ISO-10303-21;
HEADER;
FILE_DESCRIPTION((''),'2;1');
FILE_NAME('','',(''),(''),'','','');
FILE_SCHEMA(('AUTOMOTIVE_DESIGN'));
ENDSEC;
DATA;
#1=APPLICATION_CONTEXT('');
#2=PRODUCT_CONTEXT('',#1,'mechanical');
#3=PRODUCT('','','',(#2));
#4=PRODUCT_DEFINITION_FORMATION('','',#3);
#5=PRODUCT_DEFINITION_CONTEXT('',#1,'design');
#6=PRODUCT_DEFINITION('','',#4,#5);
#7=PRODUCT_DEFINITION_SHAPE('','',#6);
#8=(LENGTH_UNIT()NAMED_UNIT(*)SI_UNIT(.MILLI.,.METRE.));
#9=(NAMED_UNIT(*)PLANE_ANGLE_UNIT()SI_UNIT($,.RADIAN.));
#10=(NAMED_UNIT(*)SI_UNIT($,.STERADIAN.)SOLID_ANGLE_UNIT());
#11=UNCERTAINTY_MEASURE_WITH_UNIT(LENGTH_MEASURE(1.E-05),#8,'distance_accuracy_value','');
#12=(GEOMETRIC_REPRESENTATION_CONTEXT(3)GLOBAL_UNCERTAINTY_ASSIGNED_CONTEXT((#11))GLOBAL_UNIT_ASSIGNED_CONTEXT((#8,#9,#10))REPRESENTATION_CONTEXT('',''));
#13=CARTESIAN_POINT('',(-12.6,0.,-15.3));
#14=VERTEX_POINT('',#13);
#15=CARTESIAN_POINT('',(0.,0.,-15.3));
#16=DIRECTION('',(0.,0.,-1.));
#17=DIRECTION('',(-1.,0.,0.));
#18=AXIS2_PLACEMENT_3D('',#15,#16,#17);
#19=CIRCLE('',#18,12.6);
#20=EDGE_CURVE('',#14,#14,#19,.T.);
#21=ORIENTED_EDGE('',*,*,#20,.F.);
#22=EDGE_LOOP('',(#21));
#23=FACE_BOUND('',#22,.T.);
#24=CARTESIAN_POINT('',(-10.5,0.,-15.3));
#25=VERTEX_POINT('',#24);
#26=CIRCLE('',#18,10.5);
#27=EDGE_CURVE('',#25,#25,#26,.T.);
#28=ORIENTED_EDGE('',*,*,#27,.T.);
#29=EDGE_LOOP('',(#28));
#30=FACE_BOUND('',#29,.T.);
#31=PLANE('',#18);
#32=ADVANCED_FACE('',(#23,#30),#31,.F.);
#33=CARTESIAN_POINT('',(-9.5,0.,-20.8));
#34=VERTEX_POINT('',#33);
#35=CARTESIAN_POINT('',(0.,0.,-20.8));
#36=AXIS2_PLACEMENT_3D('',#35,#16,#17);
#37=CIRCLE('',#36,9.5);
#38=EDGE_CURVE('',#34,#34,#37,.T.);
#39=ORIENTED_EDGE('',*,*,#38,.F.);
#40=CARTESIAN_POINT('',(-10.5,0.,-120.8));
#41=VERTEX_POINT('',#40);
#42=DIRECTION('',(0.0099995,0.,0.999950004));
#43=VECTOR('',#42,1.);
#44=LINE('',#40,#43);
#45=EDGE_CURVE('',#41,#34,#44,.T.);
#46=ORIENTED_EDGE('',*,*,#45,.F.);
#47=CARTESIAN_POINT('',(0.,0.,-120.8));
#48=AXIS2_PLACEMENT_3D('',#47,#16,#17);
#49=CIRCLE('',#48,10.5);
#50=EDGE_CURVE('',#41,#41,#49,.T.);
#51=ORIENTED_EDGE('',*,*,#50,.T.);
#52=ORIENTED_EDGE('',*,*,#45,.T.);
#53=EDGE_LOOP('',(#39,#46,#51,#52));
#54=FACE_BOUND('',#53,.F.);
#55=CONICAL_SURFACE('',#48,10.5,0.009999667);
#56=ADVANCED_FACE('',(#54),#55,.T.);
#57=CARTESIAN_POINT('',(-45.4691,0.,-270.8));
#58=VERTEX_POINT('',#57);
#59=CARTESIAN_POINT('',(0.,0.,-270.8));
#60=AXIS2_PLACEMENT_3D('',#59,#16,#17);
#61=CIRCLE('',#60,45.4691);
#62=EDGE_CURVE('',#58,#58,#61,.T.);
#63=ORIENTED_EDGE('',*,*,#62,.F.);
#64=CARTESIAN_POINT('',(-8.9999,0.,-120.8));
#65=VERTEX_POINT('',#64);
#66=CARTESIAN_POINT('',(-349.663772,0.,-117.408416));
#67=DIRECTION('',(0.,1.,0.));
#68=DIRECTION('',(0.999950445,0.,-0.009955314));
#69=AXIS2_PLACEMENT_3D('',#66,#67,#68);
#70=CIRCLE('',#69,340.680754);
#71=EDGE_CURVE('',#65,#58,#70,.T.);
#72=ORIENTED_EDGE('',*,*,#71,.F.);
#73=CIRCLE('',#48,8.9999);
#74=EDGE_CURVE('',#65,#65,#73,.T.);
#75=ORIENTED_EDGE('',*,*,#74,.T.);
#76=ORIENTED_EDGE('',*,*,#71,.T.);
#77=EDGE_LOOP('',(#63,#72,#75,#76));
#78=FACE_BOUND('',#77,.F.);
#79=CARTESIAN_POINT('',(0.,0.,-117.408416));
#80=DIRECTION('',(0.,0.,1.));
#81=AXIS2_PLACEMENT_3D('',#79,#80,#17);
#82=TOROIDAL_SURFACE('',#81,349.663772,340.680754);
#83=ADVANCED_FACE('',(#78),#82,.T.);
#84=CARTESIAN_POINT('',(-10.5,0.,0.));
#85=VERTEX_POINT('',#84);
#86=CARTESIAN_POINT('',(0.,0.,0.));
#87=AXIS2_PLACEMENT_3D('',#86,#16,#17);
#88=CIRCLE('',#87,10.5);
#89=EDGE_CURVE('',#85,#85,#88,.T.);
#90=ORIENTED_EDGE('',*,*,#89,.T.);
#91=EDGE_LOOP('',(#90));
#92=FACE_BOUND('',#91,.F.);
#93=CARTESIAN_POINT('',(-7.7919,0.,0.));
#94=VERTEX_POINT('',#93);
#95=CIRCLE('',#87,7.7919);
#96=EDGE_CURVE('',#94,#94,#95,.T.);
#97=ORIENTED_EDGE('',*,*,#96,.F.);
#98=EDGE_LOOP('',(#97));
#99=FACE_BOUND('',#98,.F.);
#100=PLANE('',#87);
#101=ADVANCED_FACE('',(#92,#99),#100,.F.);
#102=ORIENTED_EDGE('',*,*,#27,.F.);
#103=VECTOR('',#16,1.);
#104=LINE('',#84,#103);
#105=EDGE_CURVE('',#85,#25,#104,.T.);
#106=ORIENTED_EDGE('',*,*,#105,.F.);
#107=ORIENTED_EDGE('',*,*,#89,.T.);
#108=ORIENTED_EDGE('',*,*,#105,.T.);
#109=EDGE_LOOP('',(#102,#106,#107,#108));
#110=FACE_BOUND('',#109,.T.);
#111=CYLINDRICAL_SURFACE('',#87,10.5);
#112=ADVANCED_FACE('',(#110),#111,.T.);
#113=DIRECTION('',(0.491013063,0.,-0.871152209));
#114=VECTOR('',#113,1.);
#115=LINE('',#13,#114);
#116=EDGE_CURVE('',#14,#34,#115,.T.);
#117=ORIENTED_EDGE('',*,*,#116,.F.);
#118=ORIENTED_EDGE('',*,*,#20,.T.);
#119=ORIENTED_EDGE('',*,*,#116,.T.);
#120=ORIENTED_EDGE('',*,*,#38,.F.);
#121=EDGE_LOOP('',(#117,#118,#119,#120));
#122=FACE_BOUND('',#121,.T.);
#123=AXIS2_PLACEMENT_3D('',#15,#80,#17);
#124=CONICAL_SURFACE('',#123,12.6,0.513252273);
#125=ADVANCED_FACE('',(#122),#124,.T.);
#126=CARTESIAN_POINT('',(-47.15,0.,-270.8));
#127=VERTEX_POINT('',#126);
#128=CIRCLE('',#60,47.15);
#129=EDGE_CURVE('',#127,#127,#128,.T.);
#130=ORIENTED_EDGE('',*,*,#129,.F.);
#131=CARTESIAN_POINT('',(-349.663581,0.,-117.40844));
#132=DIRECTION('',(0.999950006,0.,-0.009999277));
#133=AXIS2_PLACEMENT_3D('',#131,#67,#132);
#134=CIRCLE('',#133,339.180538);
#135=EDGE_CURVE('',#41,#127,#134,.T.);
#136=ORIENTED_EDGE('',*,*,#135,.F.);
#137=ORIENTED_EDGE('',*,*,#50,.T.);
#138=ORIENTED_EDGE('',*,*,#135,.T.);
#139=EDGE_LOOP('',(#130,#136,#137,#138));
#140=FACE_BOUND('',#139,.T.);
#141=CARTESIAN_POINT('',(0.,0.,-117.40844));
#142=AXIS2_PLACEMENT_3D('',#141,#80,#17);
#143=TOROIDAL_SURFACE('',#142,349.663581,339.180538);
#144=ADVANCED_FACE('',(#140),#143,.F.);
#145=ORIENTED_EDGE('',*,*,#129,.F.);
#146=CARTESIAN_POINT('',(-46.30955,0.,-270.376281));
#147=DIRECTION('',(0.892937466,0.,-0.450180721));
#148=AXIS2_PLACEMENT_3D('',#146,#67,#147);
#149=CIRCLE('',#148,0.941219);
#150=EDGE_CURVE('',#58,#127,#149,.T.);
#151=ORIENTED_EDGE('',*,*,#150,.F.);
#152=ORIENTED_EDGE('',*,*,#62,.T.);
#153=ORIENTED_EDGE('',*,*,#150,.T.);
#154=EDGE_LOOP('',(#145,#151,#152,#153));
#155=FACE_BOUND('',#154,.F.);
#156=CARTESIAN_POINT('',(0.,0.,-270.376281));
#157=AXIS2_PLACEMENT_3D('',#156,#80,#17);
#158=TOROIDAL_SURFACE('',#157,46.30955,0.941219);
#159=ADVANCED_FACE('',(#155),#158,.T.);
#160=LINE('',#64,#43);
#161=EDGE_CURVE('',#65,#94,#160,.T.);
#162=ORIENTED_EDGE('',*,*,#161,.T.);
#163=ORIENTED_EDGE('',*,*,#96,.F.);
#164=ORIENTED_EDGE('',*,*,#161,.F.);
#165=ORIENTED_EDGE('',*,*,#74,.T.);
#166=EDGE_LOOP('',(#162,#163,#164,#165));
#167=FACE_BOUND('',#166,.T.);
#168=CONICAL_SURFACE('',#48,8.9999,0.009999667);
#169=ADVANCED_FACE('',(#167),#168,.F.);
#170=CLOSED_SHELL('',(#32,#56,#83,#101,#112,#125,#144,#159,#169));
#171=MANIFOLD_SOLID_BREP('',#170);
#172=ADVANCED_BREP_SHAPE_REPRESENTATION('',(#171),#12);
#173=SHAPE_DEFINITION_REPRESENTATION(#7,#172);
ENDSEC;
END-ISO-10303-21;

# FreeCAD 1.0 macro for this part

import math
import FreeCAD as App
import Part
import Sketcher

doc = App.newDocument("Part")
body = doc.addObject("PartDesign::Body", "Body")

sketch1 = body.newObject("Sketcher::SketchObject", "Sketch")
sketch1.AttachmentSupport = (doc.getObject("XZ_Plane"), [""])
sketch1.MapMode = "FlatFace"
sketch1.addGeometry(Part.LineSegment(App.Vector(-10.5, -15.3, 0), App.Vector(-10.5, 0, 0)), False)
sketch1.addGeometry(Part.LineSegment(App.Vector(-10.5, 0, 0), App.Vector(-7.7919, 0, 0)), False)
sketch1.addGeometry(Part.LineSegment(App.Vector(-7.7919, 0, 0), App.Vector(-8.9999, -120.8, 0)), False)
sketch1.addGeometry(Part.ArcOfCircle(Part.Circle(App.Vector(-349.6639, -117.4084, 0), App.Vector(0, 0, 1), 340.680883), math.radians(-26.759732), math.radians(-0.570409)), False)
sketch1.addGeometry(Part.ArcOfCircle(Part.Circle(App.Vector(-46.3096, -270.3762, 0), App.Vector(0, 0, 1), 0.941301), math.radians(-153.238936), math.radians(-26.758323)), False)
sketch1.addGeometry(Part.ArcOfCircle(Part.Circle(App.Vector(-349.6639, -117.4084, 0), App.Vector(0, 0, 1), 339.180857), math.radians(-26.887578), math.radians(-0.572932)), False)
sketch1.addGeometry(Part.LineSegment(App.Vector(-10.5, -120.8, 0), App.Vector(-9.5, -20.8, 0)), False)
sketch1.addGeometry(Part.LineSegment(App.Vector(-9.5, -20.8, 0), App.Vector(-12.6, -15.3, 0)), False)
sketch1.addGeometry(Part.LineSegment(App.Vector(-12.6, -15.3, 0), App.Vector(-10.5, -15.3, 0)), False)
sketch1.addConstraint(Sketcher.Constraint("Coincident", 0, 2, 1, 1))
sketch1.addConstraint(Sketcher.Constraint("Coincident", 1, 2, 2, 1))
sketch1.addConstraint(Sketcher.Constraint("Coincident", 2, 2, 3, 2))
sketch1.addConstraint(Sketcher.Constraint("Coincident", 3, 1, 4, 2))
sketch1.addConstraint(Sketcher.Constraint("Coincident", 4, 1, 5, 1))
sketch1.addConstraint(Sketcher.Constraint("Coincident", 5, 2, 6, 1))
sketch1.addConstraint(Sketcher.Constraint("Coincident", 6, 2, 7, 1))
sketch1.addConstraint(Sketcher.Constraint("Coincident", 7, 2, 8, 1))
sketch1.addConstraint(Sketcher.Constraint("Coincident", 8, 2, 0, 1))
sketch1.addConstraint(Sketcher.Constraint("Vertical", 0))
sketch1.addConstraint(Sketcher.Constraint("Horizontal", 1))
sketch1.addConstraint(Sketcher.Constraint("Horizontal", 8))
sketch1.addConstraint(Sketcher.Constraint("Coincident", 5, 3, 3, 3))
sketch1.addConstraint(Sketcher.Constraint("PointOnObject", 0, 2, -1))
sketch1.addConstraint(Sketcher.Constraint("DistanceY", 0, 1, 0, 2, 15.3))
sketch1.addConstraint(Sketcher.Constraint("DistanceY", 3, 1, 2, 2, 150.0))
sketch1.addConstraint(Sketcher.Constraint("DistanceY", 4, 1, 2, 2, 150.0))
sketch1.addConstraint(Sketcher.Constraint("DistanceY", 3, 1, 5, 2, 150.0))
sketch1.addConstraint(Sketcher.Constraint("DistanceY", 2, 2, 6, 2, 100.0))
sketch1.addConstraint(Sketcher.Constraint("DistanceX", 0, 2, -1, 1, 10.5))
sketch1.addConstraint(Sketcher.Constraint("DistanceX", 5, 2, -1, 1, 10.5))
sketch1.addConstraint(Sketcher.Constraint("DistanceX", 6, 2, -1, 1, 9.5))
sketch1.addConstraint(Sketcher.Constraint("DistanceX", 7, 2, -1, 1, 12.6))
sketch1.addConstraint(Sketcher.Constraint("DistanceX", 0, 2, 2, 2, 1.5))
sketch1.addConstraint(Sketcher.Constraint("DistanceY", 6, 2, 7, 2, 5.5))
sketch1.addConstraint(Sketcher.Constraint("DistanceX", 4, 1, -1, 1, 47.15))
sketch1.addConstraint(Sketcher.Constraint("Radius", 3, 340.681))
sketch1.addConstraint(Sketcher.Constraint("Radius", 4, 0.9413))
sketch1.addConstraint(Sketcher.Constraint("DistanceX", 1, 1, 1, 2, 2.708))
revolution = body.newObject("PartDesign::Revolution", "Revolution")
revolution.Profile = sketch1
revolution.ReferenceAxis = (sketch1, ["V_Axis"])
revolution.Angle = 360

doc.recompute()
